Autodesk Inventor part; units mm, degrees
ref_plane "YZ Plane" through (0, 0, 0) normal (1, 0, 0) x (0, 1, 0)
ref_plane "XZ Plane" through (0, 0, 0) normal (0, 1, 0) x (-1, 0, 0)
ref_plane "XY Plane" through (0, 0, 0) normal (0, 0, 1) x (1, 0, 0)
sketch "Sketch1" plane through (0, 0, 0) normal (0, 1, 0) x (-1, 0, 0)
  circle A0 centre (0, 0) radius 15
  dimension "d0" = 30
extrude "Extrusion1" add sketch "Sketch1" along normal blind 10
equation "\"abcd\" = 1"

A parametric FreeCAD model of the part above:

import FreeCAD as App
import Part
import Sketcher
from FreeCAD import Vector
Q = App.Units.Quantity

doc = App.newDocument("Part")
body = doc.addObject("PartDesign::Body", "Body")

# Sketch on XZ plane
sketch1 = doc.addObject("Sketcher::SketchObject", "Sketch")
body.addObject(sketch1)
sketch1.AttachmentSupport = (doc.XZ_Plane, [""])
sketch1.MapMode = "FlatFace"
sketch1.addGeometry(Part.Circle(Vector(0, 0, 0), Vector(0, 0, 1), 15), False)
sketch1.addConstraint(Sketcher.Constraint("Coincident", 0, 3, -1, 1))
sketch1.addConstraint(Sketcher.Constraint("Diameter", 0, Q("30 mm")))
pad1 = doc.addObject("PartDesign::Pad", "Pad")
body.addObject(pad1)
pad1.Profile = sketch1
pad1.Length = 10
pad1.Reversed = True

doc.recompute()
